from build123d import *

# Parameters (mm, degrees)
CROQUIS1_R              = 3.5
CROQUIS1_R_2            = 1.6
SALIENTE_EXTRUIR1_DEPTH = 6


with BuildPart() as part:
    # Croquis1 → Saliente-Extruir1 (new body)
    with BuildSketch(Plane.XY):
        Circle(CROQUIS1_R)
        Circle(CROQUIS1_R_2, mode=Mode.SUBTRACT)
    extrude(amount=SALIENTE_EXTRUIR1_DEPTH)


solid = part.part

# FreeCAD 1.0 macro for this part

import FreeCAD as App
import Part
import Sketcher

doc = App.newDocument("Part")
body = doc.addObject("PartDesign::Body", "Body")

# Sketch on XY plane
sketch1 = body.newObject("Sketcher::SketchObject", "Sketch")
sketch1.AttachmentSupport = (doc.getObject("XY_Plane"), [""])
sketch1.MapMode = "FlatFace"
sketch1.addGeometry([
    Part.Circle(App.Vector(0, 0, 0), App.Vector(0, 0, 1), 3.5),
    Part.Circle(App.Vector(0, 0, 0), App.Vector(0, 0, 1), 1.6),
], False)
sketch1.addConstraint([
    Sketcher.Constraint("Coincident", 0, 3, -1, 1),
    Sketcher.Constraint("Coincident", 1, 3, -1, 1),
    Sketcher.Constraint("Diameter", 0, 7.0),
    Sketcher.Constraint("Diameter", 1, 3.2),
])
pad1 = body.newObject("PartDesign::Pad", "Pad")
pad1.Profile = sketch1
pad1.Length = 6

doc.recompute()
